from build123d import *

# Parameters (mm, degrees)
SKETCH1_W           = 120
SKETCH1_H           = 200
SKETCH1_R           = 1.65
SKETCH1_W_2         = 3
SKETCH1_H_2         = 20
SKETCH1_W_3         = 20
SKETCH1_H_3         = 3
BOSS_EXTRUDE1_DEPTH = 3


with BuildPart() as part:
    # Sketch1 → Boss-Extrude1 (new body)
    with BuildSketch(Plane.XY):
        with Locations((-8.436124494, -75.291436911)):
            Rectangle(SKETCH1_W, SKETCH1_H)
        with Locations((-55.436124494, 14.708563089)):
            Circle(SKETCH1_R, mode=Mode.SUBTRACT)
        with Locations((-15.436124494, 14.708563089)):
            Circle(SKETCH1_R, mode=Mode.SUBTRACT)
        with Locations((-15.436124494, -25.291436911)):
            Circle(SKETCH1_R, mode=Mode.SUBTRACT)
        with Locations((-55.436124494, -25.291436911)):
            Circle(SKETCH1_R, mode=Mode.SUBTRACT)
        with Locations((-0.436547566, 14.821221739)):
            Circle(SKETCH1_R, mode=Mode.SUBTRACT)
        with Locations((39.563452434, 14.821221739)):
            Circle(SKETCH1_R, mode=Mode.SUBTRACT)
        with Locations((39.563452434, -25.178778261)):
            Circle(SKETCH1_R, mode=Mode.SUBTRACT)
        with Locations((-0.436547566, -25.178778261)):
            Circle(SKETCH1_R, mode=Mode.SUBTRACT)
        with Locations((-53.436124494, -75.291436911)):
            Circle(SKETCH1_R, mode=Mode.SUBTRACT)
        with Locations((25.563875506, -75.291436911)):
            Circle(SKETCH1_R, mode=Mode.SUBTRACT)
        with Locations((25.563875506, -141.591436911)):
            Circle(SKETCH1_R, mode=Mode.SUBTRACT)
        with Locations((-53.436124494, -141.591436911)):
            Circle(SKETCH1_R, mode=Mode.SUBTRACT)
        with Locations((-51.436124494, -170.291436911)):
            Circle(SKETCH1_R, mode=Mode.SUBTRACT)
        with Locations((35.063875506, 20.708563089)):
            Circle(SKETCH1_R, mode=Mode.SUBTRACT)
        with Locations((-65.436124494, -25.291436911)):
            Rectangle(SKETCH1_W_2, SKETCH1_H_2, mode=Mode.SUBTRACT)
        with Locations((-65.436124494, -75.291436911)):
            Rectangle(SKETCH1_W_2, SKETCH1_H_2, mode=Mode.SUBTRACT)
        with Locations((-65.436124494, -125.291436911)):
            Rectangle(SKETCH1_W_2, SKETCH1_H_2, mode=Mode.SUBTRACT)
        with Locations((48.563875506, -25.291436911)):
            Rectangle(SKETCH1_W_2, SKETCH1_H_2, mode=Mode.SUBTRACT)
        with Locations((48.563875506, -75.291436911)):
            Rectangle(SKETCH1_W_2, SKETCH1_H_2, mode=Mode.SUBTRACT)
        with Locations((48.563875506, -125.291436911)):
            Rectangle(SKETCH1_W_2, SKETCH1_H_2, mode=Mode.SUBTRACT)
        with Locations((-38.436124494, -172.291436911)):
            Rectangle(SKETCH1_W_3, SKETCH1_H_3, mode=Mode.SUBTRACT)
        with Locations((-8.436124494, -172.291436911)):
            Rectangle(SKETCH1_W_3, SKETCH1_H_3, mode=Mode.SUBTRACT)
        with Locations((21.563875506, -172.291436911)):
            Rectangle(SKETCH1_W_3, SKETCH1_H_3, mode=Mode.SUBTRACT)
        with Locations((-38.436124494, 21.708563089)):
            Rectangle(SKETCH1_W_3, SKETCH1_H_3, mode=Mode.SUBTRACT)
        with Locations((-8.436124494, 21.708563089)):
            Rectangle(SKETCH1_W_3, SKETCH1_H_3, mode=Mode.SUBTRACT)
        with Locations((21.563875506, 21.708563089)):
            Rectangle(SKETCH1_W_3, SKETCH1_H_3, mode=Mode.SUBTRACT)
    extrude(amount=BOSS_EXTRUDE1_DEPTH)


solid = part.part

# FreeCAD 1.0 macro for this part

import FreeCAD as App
import Part
import Sketcher

V = App.Vector
Q = App.Units.Quantity


def add_polygon(sketch, points):
    """Adds a closed chain of lines whose ends are joined by coincident constraints."""
    first, n = sketch.GeometryCount, len(points)
    for a, b in zip(points, points[1:] + points[:1]):
        sketch.addGeometry(Part.LineSegment(App.Vector(*a, 0), App.Vector(*b, 0)), False)
    for i in range(n):
        sketch.addConstraint(Sketcher.Constraint("Coincident", first + i, 2, first + (i + 1) % n, 1))

doc = App.newDocument("Part")
body = doc.addObject("PartDesign::Body", "Body")

sketch1 = doc.addObject("Sketcher::SketchObject", "Sketch")
body.addObject(sketch1)
sketch1.AttachmentSupport = (doc.XY_Plane, [""])
sketch1.MapMode = "FlatFace"
add_polygon(sketch1, [(-68.4, 24.7), (-68.4, -175.3), (51.6, -175.3), (51.6, 24.7)])
sketch1.addGeometry(Part.Circle(V(-51.4, -170.3, 0), V(0, 0, 1), 1.6), False)
add_polygon(sketch1, [(-28.4, -173.8), (-48.4, -173.8), (-48.4, -170.8), (-28.4, -170.8)])
sketch1.addGeometry(Part.Circle(V(-53.4, -141.6, 0), V(0, 0, 1), 1.6), False)
add_polygon(sketch1, [(-63.9, -135.3), (-66.9, -135.3), (-66.9, -115.3), (-63.9, -115.3)])
add_polygon(sketch1, [(-63.9, -85.3), (-66.9, -85.3), (-66.9, -65.3), (-63.9, -65.3)])
sketch1.addGeometry(Part.Circle(V(-53.4, -75.3, 0), V(0, 0, 1), 1.6), False)
add_polygon(sketch1, [(1.6, -173.8), (-18.4, -173.8), (-18.4, -170.8), (1.6, -170.8)])
add_polygon(sketch1, [(31.6, -173.8), (11.6, -173.8), (11.6, -170.8), (31.6, -170.8)])
sketch1.addGeometry(Part.Circle(V(25.6, -141.6, 0), V(0, 0, 1), 1.6), False)
add_polygon(sketch1, [(50.1, -135.3), (47.1, -135.3), (47.1, -115.3), (50.1, -115.3)])
sketch1.addGeometry(Part.Circle(V(25.6, -75.3, 0), V(0, 0, 1), 1.6), False)
add_polygon(sketch1, [(50.1, -85.3), (47.1, -85.3), (47.1, -65.3), (50.1, -65.3)])
add_polygon(sketch1, [(-63.9, -35.3), (-66.9, -35.3), (-66.9, -15.3), (-63.9, -15.3)])
sketch1.addGeometry(Part.Circle(V(-55.4, -25.3, 0), V(0, 0, 1), 1.6), False)
sketch1.addGeometry(Part.Circle(V(-55.4, 14.7, 0), V(0, 0, 1), 1.6), False)
add_polygon(sketch1, [(-28.4, 20.2), (-48.4, 20.2), (-48.4, 23.2), (-28.4, 23.2)])
sketch1.addGeometry(Part.Circle(V(-15.4, -25.3, 0), V(0, 0, 1), 1.6), False)
sketch1.addGeometry(Part.Circle(V(-15.4, 14.7, 0), V(0, 0, 1), 1.6), False)
sketch1.addGeometry(Part.Circle(V(-0.4, -25.2, 0), V(0, 0, 1), 1.6), False)
add_polygon(sketch1, [(1.6, 20.2), (-18.4, 20.2), (-18.4, 23.2), (1.6, 23.2)])
sketch1.addGeometry(Part.Circle(V(-0.4, 14.8, 0), V(0, 0, 1), 1.6), False)
sketch1.addGeometry(Part.Circle(V(39.6, -25.2, 0), V(0, 0, 1), 1.6), False)
add_polygon(sketch1, [(50.1, -35.3), (47.1, -35.3), (47.1, -15.3), (50.1, -15.3)])
add_polygon(sketch1, [(31.6, 20.2), (11.6, 20.2), (11.6, 23.2), (31.6, 23.2)])
sketch1.addGeometry(Part.Circle(V(35.1, 20.7, 0), V(0, 0, 1), 1.6), False)
sketch1.addGeometry(Part.Circle(V(39.6, 14.8, 0), V(0, 0, 1), 1.6), False)
sketch1.addConstraint([
    Sketcher.Constraint("Vertical", 0),
    Sketcher.Constraint("Horizontal", 1),
    Sketcher.Constraint("Vertical", 2),
    Sketcher.Constraint("Horizontal", 3),
    Sketcher.Constraint("Horizontal", 5),
    Sketcher.Constraint("Vertical", 6),
    Sketcher.Constraint("Horizontal", 7),
    Sketcher.Constraint("Vertical", 8),
    Sketcher.Constraint("Horizontal", 10),
    Sketcher.Constraint("Vertical", 11),
    Sketcher.Constraint("Horizontal", 12),
    Sketcher.Constraint("Vertical", 13),
    Sketcher.Constraint("Horizontal", 14),
    Sketcher.Constraint("Vertical", 15),
    Sketcher.Constraint("Horizontal", 16),
    Sketcher.Constraint("Vertical", 17),
    Sketcher.Constraint("Horizontal", 19),
    Sketcher.Constraint("Vertical", 20),
    Sketcher.Constraint("Horizontal", 21),
    Sketcher.Constraint("Vertical", 22),
    Sketcher.Constraint("Horizontal", 23),
    Sketcher.Constraint("Vertical", 24),
    Sketcher.Constraint("Horizontal", 25),
    Sketcher.Constraint("Vertical", 26),
    Sketcher.Constraint("Horizontal", 28),
    Sketcher.Constraint("Vertical", 29),
    Sketcher.Constraint("Horizontal", 30),
    Sketcher.Constraint("Vertical", 31),
    Sketcher.Constraint("Horizontal", 33),
    Sketcher.Constraint("Vertical", 34),
    Sketcher.Constraint("Horizontal", 35),
    Sketcher.Constraint("Vertical", 36),
    Sketcher.Constraint("Horizontal", 37),
    Sketcher.Constraint("Vertical", 38),
    Sketcher.Constraint("Horizontal", 39),
    Sketcher.Constraint("Vertical", 40),
    Sketcher.Constraint("Horizontal", 43),
    Sketcher.Constraint("Vertical", 44),
    Sketcher.Constraint("Horizontal", 45),
    Sketcher.Constraint("Vertical", 46),
    Sketcher.Constraint("Horizontal", 50),
    Sketcher.Constraint("Vertical", 51),
    Sketcher.Constraint("Horizontal", 52),
    Sketcher.Constraint("Vertical", 53),
    Sketcher.Constraint("Horizontal", 56),
    Sketcher.Constraint("Vertical", 57),
    Sketcher.Constraint("Horizontal", 58),
    Sketcher.Constraint("Vertical", 59),
    Sketcher.Constraint("Horizontal", 60),
    Sketcher.Constraint("Vertical", 61),
    Sketcher.Constraint("Horizontal", 62),
    Sketcher.Constraint("Vertical", 63),
    Sketcher.Constraint("Equal", 4, 9),
    Sketcher.Constraint("Equal", 9, 18),
    Sketcher.Constraint("Equal", 18, 27),
    Sketcher.Constraint("Equal", 27, 32),
    Sketcher.Constraint("Equal", 32, 41),
    Sketcher.Constraint("Equal", 41, 42),
    Sketcher.Constraint("Equal", 42, 47),
    Sketcher.Constraint("Equal", 47, 48),
    Sketcher.Constraint("Equal", 48, 49),
    Sketcher.Constraint("Equal", 49, 54),
    Sketcher.Constraint("Equal", 54, 55),
    Sketcher.Constraint("Equal", 55, 64),
    Sketcher.Constraint("Equal", 64, 65),
    Sketcher.Constraint("Horizontal", 9, 3, 27, 3),
    Sketcher.Constraint("Horizontal", 18, 3, 32, 3),
    Sketcher.Constraint("Horizontal", 41, 3, 47, 3),
    Sketcher.Constraint("Horizontal", 42, 3, 48, 3),
    Sketcher.Constraint("Horizontal", 49, 3, 55, 3),
    Sketcher.Constraint("Horizontal", 54, 3, 65, 3),
    Sketcher.Constraint("Horizontal", 8, 2, 19, 2),
    Sketcher.Constraint("Horizontal", 7, 2, 20, 2),
    Sketcher.Constraint("Horizontal", 22, 2, 23, 2),
    Sketcher.Constraint("Horizontal", 21, 2, 24, 2),
    Sketcher.Constraint("Horizontal", 13, 2, 28, 2),
    Sketcher.Constraint("Horizontal", 12, 2, 29, 2),
    Sketcher.Constraint("Horizontal", 17, 2, 33, 2),
    Sketcher.Constraint("Horizontal", 16, 2, 34, 2),
    Sketcher.Constraint("Horizontal", 46, 2, 50, 2),
    Sketcher.Constraint("Horizontal", 45, 2, 51, 2),
    Sketcher.Constraint("Horizontal", 40, 2, 56, 2),
    Sketcher.Constraint("Horizontal", 39, 2, 57, 2),
    Sketcher.Constraint("Horizontal", 53, 2, 60, 2),
    Sketcher.Constraint("Horizontal", 52, 2, 61, 2),
    Sketcher.Constraint("Vertical", 9, 3, 18, 3),
    Sketcher.Constraint("Vertical", 27, 3, 32, 3),
    Sketcher.Constraint("Vertical", 41, 3, 42, 3),
    Sketcher.Constraint("Vertical", 47, 3, 48, 3),
    Sketcher.Constraint("Vertical", 49, 3, 54, 3),
    Sketcher.Constraint("Vertical", 55, 3, 65, 3),
    Sketcher.Constraint("Vertical", 11, 2, 14, 2),
    Sketcher.Constraint("Vertical", 13, 2, 16, 2),
    Sketcher.Constraint("Vertical", 29, 2, 33, 2),
    Sketcher.Constraint("Vertical", 31, 2, 35, 2),
    Sketcher.Constraint("Vertical", 15, 2, 37, 2),
    Sketcher.Constraint("Vertical", 17, 2, 39, 2),
    Sketcher.Constraint("Vertical", 6, 2, 43, 2),
    Sketcher.Constraint("Vertical", 8, 2, 45, 2),
    Sketcher.Constraint("Vertical", 20, 2, 50, 2),
    Sketcher.Constraint("Vertical", 22, 2, 52, 2),
    Sketcher.Constraint("Vertical", 34, 2, 56, 2),
    Sketcher.Constraint("Vertical", 36, 2, 58, 2),
    Sketcher.Constraint("Vertical", 24, 2, 60, 2),
    Sketcher.Constraint("Vertical", 26, 2, 62, 2),
    Sketcher.Constraint("Equal", 7, 19),
    Sketcher.Constraint("Equal", 21, 23),
    Sketcher.Constraint("Equal", 16, 28),
    Sketcher.Constraint("Equal", 58, 6),
    Sketcher.Constraint("Equal", 62, 11),
    Sketcher.Constraint("Equal", 13, 15),
    Sketcher.Constraint("Equal", 36, 38),
    Sketcher.Constraint("Equal", 26, 44),
    Sketcher.Constraint("Diameter", 4, Q("3.3 mm")),
    Sketcher.Constraint("DistanceX", 1, 1, 1, 2, Q("120 mm")),
    Sketcher.Constraint("DistanceX", 5, 2, 5, 1, Q("20 mm")),
    Sketcher.Constraint("DistanceX", 10, 2, 10, 1, Q("3 mm")),
    Sketcher.Constraint("DistanceY", 0, 2, 0, 1, Q("200 mm")),
    Sketcher.Constraint("DistanceY", 49, 3, -1, 1, Q("25.178778 mm")),
    Sketcher.Constraint("DistanceY", -1, 1, 54, 3, Q("14.821222 mm")),
    Sketcher.Constraint("DistanceX", 4, 3, -1, 1, Q("51.436124 mm")),
    Sketcher.Constraint("DistanceY", 4, 3, -1, 1, Q("170.291437 mm")),
    Sketcher.Constraint("DistanceX", 9, 3, -1, 1, Q("53.436124 mm")),
    Sketcher.Constraint("DistanceY", 9, 3, -1, 1, Q("141.591437 mm")),
    Sketcher.Constraint("DistanceY", 18, 3, -1, 1, Q("75.291437 mm")),
    Sketcher.Constraint("DistanceX", -1, 1, 27, 3, Q("25.563876 mm")),
    Sketcher.Constraint("DistanceX", 41, 3, -1, 1, Q("55.436124 mm")),
    Sketcher.Constraint("DistanceY", 41, 3, -1, 1, Q("25.291437 mm")),
    Sketcher.Constraint("DistanceY", -1, 1, 42, 3, Q("14.708563 mm")),
    Sketcher.Constraint("DistanceX", 47, 3, -1, 1, Q("15.436124 mm")),
    Sketcher.Constraint("DistanceX", 49, 3, -1, 1, Q("0.436548 mm")),
    Sketcher.Constraint("DistanceX", -1, 1, 55, 3, Q("39.563452 mm")),
    Sketcher.Constraint("DistanceX", -1, 1, 64, 3, Q("35.063876 mm")),
    Sketcher.Constraint("DistanceY", -1, 1, 64, 3, Q("20.708563 mm")),
    Sketcher.Constraint("DistanceX", 0, 2, -1, 1, Q("68.436124 mm")),
    Sketcher.Constraint("DistanceY", 0, 2, -1, 1, Q("175.291437 mm")),
    Sketcher.Constraint("DistanceX", 5, 2, -1, 1, Q("48.436124 mm")),
    Sketcher.Constraint("DistanceY", 5, 2, -1, 1, Q("173.791437 mm")),
    Sketcher.Constraint("DistanceX", 10, 2, -1, 1, Q("66.936124 mm")),
    Sketcher.Constraint("DistanceY", 10, 2, -1, 1, Q("135.291437 mm")),
    Sketcher.Constraint("DistanceY", 14, 2, -1, 1, Q("85.291437 mm")),
    Sketcher.Constraint("DistanceX", 19, 2, -1, 1, Q("18.436124 mm")),
    Sketcher.Constraint("DistanceX", -1, 1, 23, 2, Q("11.563876 mm")),
    Sketcher.Constraint("DistanceX", -1, 1, 28, 2, Q("47.063876 mm")),
    Sketcher.Constraint("DistanceY", 37, 2, -1, 1, Q("35.291437 mm")),
    Sketcher.Constraint("DistanceY", -1, 1, 43, 2, Q("20.208563 mm")),
])
pad1 = doc.addObject("PartDesign::Pad", "Pad")
body.addObject(pad1)
pad1.Profile = sketch1
pad1.Length = 3

doc.recompute()
